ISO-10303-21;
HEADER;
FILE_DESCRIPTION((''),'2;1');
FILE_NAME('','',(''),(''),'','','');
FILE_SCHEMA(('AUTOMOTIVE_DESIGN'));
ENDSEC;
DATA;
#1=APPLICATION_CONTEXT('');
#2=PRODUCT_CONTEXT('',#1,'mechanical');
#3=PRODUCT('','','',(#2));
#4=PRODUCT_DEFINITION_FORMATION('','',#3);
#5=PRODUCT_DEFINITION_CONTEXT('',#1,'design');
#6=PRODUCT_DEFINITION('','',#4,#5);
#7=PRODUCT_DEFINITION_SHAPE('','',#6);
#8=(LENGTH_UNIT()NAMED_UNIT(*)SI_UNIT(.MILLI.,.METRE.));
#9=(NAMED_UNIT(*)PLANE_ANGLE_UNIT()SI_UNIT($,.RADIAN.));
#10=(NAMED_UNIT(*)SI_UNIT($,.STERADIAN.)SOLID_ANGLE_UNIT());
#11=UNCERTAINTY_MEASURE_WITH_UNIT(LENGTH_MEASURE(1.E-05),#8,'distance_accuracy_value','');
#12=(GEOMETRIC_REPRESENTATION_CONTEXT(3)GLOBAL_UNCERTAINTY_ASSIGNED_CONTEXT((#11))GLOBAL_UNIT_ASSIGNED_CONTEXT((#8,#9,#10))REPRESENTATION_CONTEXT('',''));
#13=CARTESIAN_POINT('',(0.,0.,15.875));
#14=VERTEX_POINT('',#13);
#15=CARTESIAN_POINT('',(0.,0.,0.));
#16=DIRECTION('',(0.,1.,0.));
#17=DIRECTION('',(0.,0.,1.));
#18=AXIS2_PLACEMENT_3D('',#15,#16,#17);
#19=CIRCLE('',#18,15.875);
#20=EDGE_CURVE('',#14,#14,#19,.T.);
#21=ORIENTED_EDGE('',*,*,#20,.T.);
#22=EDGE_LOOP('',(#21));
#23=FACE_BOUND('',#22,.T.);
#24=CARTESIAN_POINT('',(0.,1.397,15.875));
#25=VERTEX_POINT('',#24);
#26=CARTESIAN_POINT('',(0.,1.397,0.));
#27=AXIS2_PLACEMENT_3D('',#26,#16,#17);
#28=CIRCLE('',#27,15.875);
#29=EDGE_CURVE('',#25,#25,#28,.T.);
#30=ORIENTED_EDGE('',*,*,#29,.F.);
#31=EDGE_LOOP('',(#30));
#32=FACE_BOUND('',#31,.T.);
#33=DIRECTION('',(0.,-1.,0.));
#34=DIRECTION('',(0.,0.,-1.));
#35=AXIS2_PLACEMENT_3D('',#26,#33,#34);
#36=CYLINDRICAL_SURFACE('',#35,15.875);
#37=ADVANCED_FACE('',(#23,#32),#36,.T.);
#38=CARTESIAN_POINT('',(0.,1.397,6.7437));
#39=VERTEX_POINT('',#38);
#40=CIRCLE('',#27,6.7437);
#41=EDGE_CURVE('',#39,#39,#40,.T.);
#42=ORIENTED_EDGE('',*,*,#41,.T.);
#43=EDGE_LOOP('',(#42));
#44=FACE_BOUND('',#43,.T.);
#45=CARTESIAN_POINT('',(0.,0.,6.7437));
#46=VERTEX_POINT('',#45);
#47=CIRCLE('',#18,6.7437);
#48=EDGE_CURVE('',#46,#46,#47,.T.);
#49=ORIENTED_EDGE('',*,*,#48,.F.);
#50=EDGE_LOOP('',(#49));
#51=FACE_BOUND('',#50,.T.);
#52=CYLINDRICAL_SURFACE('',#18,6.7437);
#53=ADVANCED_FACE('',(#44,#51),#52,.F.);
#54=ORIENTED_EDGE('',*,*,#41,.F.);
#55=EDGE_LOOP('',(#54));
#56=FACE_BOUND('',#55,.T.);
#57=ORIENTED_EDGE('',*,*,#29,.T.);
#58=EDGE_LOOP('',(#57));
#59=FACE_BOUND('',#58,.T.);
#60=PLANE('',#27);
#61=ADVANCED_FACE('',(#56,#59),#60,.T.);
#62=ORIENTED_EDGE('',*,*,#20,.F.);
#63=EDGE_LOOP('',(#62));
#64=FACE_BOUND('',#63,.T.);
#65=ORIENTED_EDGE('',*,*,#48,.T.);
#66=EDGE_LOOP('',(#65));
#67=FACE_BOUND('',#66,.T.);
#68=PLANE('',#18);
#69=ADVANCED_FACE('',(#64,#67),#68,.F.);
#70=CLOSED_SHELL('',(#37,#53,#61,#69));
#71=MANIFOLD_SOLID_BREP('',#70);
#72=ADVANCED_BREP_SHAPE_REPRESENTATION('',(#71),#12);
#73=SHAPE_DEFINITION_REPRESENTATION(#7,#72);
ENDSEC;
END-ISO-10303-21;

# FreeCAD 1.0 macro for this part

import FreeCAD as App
import Part
import Sketcher
Q = App.Units.Quantity

doc = App.newDocument("Part")
params = doc.addObject("Spreadsheet::Sheet", "Params")
for row, (alias, value) in enumerate([
    ("sketch1_diameter", "1.25 in"),
    ("pad1_length", "0.055 in"),
    ("sketch2_diameter", "0.531 in"),
], start=1):
    params.set(f"A{row}", alias)
    params.set(f"B{row}", "=" + value)
    params.setAlias(f"B{row}", alias)

body = doc.addObject("PartDesign::Body", "Body")

sketch1 = body.newObject("Sketcher::SketchObject", "Sketch")
sketch1.AttachmentSupport = (doc.getObject("XZ_Plane"), [""])
sketch1.MapMode = "FlatFace"
sketch1.addGeometry(Part.Circle(App.Vector(0, 0, 0), App.Vector(0, 0, 1), 15.875), False)
sketch1.addConstraint([
    Sketcher.Constraint("Coincident", 0, 3, -1, 1),
    Sketcher.Constraint("Diameter", 0, Q("1.25 in")),
])
sketch1.setExpression("Constraints[1]", "Params.sketch1_diameter")
pad1 = body.newObject("PartDesign::Pad", "Pad")
pad1.Profile = sketch1
pad1.setExpression("Length", "Params.pad1_length")
pad1.Reversed = True

sketch2 = body.newObject("Sketcher::SketchObject", "Sketch001")
sketch2.AttachmentSupport = (doc.getObject("XZ_Plane"), [""])
sketch2.MapMode = "FlatFace"
sketch2.AttachmentOffset = App.Placement(App.Vector(0, 0, -0.055 * 25.4), App.Rotation())
sketch2.addGeometry(Part.Circle(App.Vector(0, 0, 0), App.Vector(0, 0, 1), 6.7437), False)
sketch2.addConstraint([
    Sketcher.Constraint("Coincident", 0, 3, -1, 1),
    Sketcher.Constraint("Diameter", 0, Q("0.531 in")),
])
sketch2.setExpression("Constraints[1]", "Params.sketch2_diameter")
pocket1 = body.newObject("PartDesign::Pocket", "Pocket")
pocket1.Profile = sketch2
pocket1.Type = "ThroughAll"
pocket1.Reversed = True

doc.recompute()
